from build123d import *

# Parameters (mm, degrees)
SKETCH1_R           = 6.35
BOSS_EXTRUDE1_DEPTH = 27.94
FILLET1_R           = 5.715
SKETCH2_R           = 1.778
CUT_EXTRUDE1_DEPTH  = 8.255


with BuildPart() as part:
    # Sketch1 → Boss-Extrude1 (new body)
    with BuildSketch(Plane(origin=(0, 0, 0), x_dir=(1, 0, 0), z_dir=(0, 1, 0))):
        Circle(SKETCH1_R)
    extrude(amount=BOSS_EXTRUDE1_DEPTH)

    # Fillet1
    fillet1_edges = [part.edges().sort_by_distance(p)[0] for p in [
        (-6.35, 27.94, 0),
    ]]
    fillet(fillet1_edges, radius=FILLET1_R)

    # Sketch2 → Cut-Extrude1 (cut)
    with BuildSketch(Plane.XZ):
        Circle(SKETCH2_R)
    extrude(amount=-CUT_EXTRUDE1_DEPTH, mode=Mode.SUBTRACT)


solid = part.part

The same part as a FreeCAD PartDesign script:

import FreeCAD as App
import Part
import Sketcher

V = App.Vector
Q = App.Units.Quantity


def edges_at(feature, points):
    """Names of the edges that pass closest to the given points."""
    edges = feature.Shape.Edges
    near = lambda p: min(range(len(edges)), key=lambda i: edges[i].distToShape(Part.Vertex(*p))[0])
    return sorted({f"Edge{near(p) + 1}" for p in points})

doc = App.newDocument("Part")
body = doc.addObject("PartDesign::Body", "Body")

# Sketch on XZ plane
sketch1 = body.newObject("Sketcher::SketchObject", "Sketch")
sketch1.AttachmentSupport = (doc.getObject("XZ_Plane"), [""])
sketch1.MapMode = "FlatFace"
sketch1.addGeometry(Part.Circle(V(0, 0, 0), V(0, 0, 1), 6), False)
sketch1.addConstraint([
    Sketcher.Constraint("Coincident", 0, 3, -1, 1),
    Sketcher.Constraint("Diameter", 0, Q("0.5 in")),
])
pad1 = body.newObject("PartDesign::Pad", "Pad")
pad1.Profile = sketch1
pad1.Length = Q("1.1 in")
pad1.Reversed = True
doc.recompute()

fillet = body.newObject("PartDesign::Fillet", "Fillet")
fillet.Base = (pad1, edges_at(pad1, [(-6.35, 27.94, 0)]))
fillet.Radius = Q("0.225 in")

# Sketch on XZ plane
sketch2 = body.newObject("Sketcher::SketchObject", "Sketch001")
sketch2.AttachmentSupport = (doc.getObject("XZ_Plane"), [""])
sketch2.MapMode = "FlatFace"
sketch2.addGeometry(Part.Circle(V(0, 0, 0), V(0, 0, 1), 1.8), False)
sketch2.addConstraint([
    Sketcher.Constraint("Coincident", 0, 3, -1, 1),
    Sketcher.Constraint("Diameter", 0, Q("0.14 in")),
])
pocket1 = body.newObject("PartDesign::Pocket", "Pocket")
pocket1.Profile = sketch2
pocket1.Length = Q("0.325 in")

doc.recompute()
